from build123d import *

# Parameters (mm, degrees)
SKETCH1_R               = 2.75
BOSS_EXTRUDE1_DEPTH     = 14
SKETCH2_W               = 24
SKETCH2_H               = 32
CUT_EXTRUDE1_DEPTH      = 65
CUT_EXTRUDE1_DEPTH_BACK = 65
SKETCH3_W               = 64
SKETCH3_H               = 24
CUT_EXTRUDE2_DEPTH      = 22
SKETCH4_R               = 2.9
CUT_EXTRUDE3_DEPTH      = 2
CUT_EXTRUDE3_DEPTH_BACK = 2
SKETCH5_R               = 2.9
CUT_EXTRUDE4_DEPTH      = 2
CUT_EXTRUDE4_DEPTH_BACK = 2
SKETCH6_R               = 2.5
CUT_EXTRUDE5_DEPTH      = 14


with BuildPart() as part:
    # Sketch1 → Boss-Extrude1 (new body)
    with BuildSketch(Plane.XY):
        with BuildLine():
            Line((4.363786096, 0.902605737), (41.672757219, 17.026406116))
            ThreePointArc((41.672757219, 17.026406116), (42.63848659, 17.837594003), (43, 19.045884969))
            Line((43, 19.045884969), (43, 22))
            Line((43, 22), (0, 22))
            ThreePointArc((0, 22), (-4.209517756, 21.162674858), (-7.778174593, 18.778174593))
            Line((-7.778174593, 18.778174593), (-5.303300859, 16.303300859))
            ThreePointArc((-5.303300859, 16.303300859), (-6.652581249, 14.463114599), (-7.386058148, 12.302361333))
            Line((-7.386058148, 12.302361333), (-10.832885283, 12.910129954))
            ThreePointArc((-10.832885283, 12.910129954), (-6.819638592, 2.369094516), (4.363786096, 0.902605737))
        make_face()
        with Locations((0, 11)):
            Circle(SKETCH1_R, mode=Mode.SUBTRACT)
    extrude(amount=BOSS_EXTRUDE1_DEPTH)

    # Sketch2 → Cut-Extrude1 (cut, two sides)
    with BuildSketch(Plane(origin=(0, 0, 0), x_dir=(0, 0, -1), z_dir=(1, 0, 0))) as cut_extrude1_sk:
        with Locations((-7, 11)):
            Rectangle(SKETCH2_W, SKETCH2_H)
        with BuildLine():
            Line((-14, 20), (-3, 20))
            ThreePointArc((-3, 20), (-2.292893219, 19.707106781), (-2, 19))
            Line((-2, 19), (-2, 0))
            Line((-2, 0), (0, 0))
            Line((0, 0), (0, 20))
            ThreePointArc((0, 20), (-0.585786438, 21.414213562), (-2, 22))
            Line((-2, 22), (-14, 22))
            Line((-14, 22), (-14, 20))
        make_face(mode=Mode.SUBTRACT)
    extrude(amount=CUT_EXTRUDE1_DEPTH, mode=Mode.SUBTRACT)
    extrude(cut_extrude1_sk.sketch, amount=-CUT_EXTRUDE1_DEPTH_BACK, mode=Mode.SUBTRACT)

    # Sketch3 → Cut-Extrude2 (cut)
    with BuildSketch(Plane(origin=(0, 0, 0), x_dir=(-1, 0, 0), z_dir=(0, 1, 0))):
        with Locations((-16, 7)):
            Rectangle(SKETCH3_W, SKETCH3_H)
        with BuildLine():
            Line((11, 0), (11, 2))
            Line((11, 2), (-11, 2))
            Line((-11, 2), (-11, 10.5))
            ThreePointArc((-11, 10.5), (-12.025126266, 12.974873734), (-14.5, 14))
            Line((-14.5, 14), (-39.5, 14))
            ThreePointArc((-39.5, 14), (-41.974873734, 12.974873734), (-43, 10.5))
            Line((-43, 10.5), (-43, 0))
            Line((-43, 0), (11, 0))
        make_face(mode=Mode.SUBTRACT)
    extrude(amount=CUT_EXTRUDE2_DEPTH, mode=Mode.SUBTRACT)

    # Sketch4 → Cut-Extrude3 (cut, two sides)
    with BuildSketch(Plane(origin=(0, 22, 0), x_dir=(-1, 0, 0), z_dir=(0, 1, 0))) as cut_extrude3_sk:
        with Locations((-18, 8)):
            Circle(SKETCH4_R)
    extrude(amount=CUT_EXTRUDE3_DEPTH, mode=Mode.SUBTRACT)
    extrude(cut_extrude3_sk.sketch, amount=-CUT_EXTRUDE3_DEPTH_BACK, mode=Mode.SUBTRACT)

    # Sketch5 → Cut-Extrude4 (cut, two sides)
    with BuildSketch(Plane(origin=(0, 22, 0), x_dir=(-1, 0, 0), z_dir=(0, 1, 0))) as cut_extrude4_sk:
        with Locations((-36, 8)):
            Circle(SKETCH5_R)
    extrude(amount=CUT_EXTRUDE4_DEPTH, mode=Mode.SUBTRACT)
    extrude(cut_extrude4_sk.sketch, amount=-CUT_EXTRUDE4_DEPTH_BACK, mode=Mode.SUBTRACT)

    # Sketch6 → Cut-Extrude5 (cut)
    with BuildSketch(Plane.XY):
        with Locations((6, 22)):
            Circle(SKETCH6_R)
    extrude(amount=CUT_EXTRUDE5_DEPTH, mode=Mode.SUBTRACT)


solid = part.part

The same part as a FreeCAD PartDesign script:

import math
import FreeCAD as App
import Part
import Sketcher

V = App.Vector
Q = App.Units.Quantity

doc = App.newDocument("Part")
body = doc.addObject("PartDesign::Body", "Body")

sketch1 = body.newObject("Sketcher::SketchObject", "Sketch")
sketch1.AttachmentSupport = (doc.getObject("XY_Plane"), [""])
sketch1.MapMode = "FlatFace"
sketch1.addGeometry(Part.LineSegment(V(4.4, 0.9, 0), V(41.7, 17, 0)), False)
sketch1.addGeometry(Part.ArcOfCircle(Part.Circle(V(40.8, 19, 0), V(0, 0, 1), 2.2), math.radians(-67), math.radians(0)), False)
sketch1.addGeometry(Part.LineSegment(V(43, 19, 0), V(43, 22, 0)), False)
sketch1.addGeometry(Part.LineSegment(V(43, 22, 0), V(0, 22, 0)), False)
sketch1.addGeometry(Part.ArcOfCircle(Part.Circle(V(0, 11, 0), V(0, 0, 1), 11), math.radians(90), math.radians(135)), False)
sketch1.addGeometry(Part.LineSegment(V(-7.8, 18.8, 0), V(-5.3, 16.3, 0)), False)
sketch1.addGeometry(Part.ArcOfCircle(Part.Circle(V(0, 11, 0), V(0, 0, 1), 7.5), math.radians(135), math.radians(170)), False)
sketch1.addGeometry(Part.LineSegment(V(-7.4, 12.3, 0), V(-10.8, 12.9, 0)), False)
sketch1.addGeometry(Part.ArcOfCircle(Part.Circle(V(0, 11, 0), V(0, 0, 1), 11), math.radians(170), math.radians(293)), False)
sketch1.addGeometry(Part.Circle(V(0, 11, 0), V(0, 0, 1), 2.8), False)
sketch1.addConstraint(Sketcher.Constraint("Tangent", 0, 2, 1, 1))
sketch1.addConstraint(Sketcher.Constraint("Tangent", 1, 2, 2, 1))
sketch1.addConstraint(Sketcher.Constraint("Coincident", 2, 2, 3, 1))
sketch1.addConstraint(Sketcher.Constraint("Tangent", 3, 2, 4, 1))
sketch1.addConstraint(Sketcher.Constraint("Coincident", 4, 2, 5, 1))
sketch1.addConstraint(Sketcher.Constraint("Coincident", 5, 2, 6, 1))
sketch1.addConstraint(Sketcher.Constraint("Coincident", 6, 2, 7, 1))
sketch1.addConstraint(Sketcher.Constraint("Coincident", 7, 2, 8, 1))
sketch1.addConstraint(Sketcher.Constraint("Tangent", 8, 2, 0, 1))
sketch1.addConstraint(Sketcher.Constraint("Vertical", 2))
sketch1.addConstraint(Sketcher.Constraint("Horizontal", 3))
sketch1.addConstraint(Sketcher.Constraint("Coincident", 6, 3, 4, 3))
sketch1.addConstraint(Sketcher.Constraint("Coincident", 8, 3, 4, 3))
sketch1.addConstraint(Sketcher.Constraint("Coincident", 9, 3, 4, 3))
sketch1.addConstraint(Sketcher.Constraint("Equal", 4, 8))
sketch1.addConstraint(Sketcher.Constraint("PointOnObject", 4, 3, -2))
sketch1.addConstraint(Sketcher.Constraint("Radius", 4, 11.0))
sketch1.addConstraint(Sketcher.Constraint("Diameter", 9, 5.5))
sketch1.addConstraint(Sketcher.Constraint("Radius", 1, 2.2))
sketch1.addConstraint(Sketcher.Constraint("Radius", 6, 7.5))
sketch1.addConstraint(Sketcher.Constraint("DistanceX", 3, 2, 3, 1, 43.0))
sketch1.addConstraint(Sketcher.Constraint("Angle", 5, Q("-45 deg")))
sketch1.addConstraint(Sketcher.Constraint("Angle", 7, Q("170 deg")))
sketch1.addConstraint(Sketcher.Constraint("DistanceY", -1, 1, 4, 3, 11.0))
sketch1.addConstraint(Sketcher.Constraint("DistanceX", 5, 2, -1, 1, 5.303301))
sketch1.addConstraint(Sketcher.Constraint("Distance", 0, 40.644019))
sketch1.addConstraint(Sketcher.Constraint("DistanceX", 6, 2, -1, 1, 7.386058))
pad1 = body.newObject("PartDesign::Pad", "Pad")
pad1.Profile = sketch1
pad1.Length = 14

sketch2 = body.newObject("Sketcher::SketchObject", "Sketch001")
sketch2.AttachmentSupport = (doc.getObject("YZ_Plane"), [""])
sketch2.MapMode = "FlatFace"
sketch2.addGeometry(Part.LineSegment(V(27, 19, 0), V(-5, 19, 0)), False)
sketch2.addGeometry(Part.LineSegment(V(-5, 19, 0), V(-5, -5, 0)), False)
sketch2.addGeometry(Part.LineSegment(V(-5, -5, 0), V(27, -5, 0)), False)
sketch2.addGeometry(Part.LineSegment(V(27, -5, 0), V(27, 19, 0)), False)
sketch2.addGeometry(Part.LineSegment(V(20, 3, 0), V(20, 14, 0)), False)
sketch2.addGeometry(Part.LineSegment(V(20, 14, 0), V(22, 14, 0)), False)
sketch2.addGeometry(Part.LineSegment(V(22, 14, 0), V(22, 2, 0)), False)
sketch2.addGeometry(Part.ArcOfCircle(Part.Circle(V(20, 2, 0), V(0, 0, 1), 2), math.radians(-90), math.radians(0)), False)
sketch2.addGeometry(Part.LineSegment(V(20, 0, 0), V(0, 0, 0)), False)
sketch2.addGeometry(Part.LineSegment(V(0, 0, 0), V(0, 2, 0)), False)
sketch2.addGeometry(Part.LineSegment(V(0, 2, 0), V(19, 2, 0)), False)
sketch2.addGeometry(Part.ArcOfCircle(Part.Circle(V(19, 3, 0), V(0, 0, 1), 1), math.radians(-90), math.radians(0)), False)
sketch2.addConstraint(Sketcher.Constraint("Coincident", 0, 2, 1, 1))
sketch2.addConstraint(Sketcher.Constraint("Coincident", 1, 2, 2, 1))
sketch2.addConstraint(Sketcher.Constraint("Coincident", 2, 2, 3, 1))
sketch2.addConstraint(Sketcher.Constraint("Coincident", 3, 2, 0, 1))
sketch2.addConstraint(Sketcher.Constraint("Coincident", 4, 2, 5, 1))
sketch2.addConstraint(Sketcher.Constraint("Coincident", 5, 2, 6, 1))
sketch2.addConstraint(Sketcher.Constraint("Tangent", 6, 2, 7, 2))
sketch2.addConstraint(Sketcher.Constraint("Tangent", 7, 1, 8, 1))
sketch2.addConstraint(Sketcher.Constraint("Coincident", 8, 2, 9, 1))
sketch2.addConstraint(Sketcher.Constraint("Coincident", 9, 2, 10, 1))
sketch2.addConstraint(Sketcher.Constraint("Tangent", 10, 2, 11, 1))
sketch2.addConstraint(Sketcher.Constraint("Tangent", 11, 2, 4, 1))
sketch2.addConstraint(Sketcher.Constraint("Horizontal", 0))
sketch2.addConstraint(Sketcher.Constraint("Vertical", 1))
sketch2.addConstraint(Sketcher.Constraint("Horizontal", 2))
sketch2.addConstraint(Sketcher.Constraint("Vertical", 3))
sketch2.addConstraint(Sketcher.Constraint("Vertical", 4))
sketch2.addConstraint(Sketcher.Constraint("Horizontal", 5))
sketch2.addConstraint(Sketcher.Constraint("Vertical", 6))
sketch2.addConstraint(Sketcher.Constraint("Horizontal", 8))
sketch2.addConstraint(Sketcher.Constraint("Vertical", 9))
sketch2.addConstraint(Sketcher.Constraint("Horizontal", 10))
sketch2.addConstraint(Sketcher.Constraint("Coincident", 8, 2, -1, 1))
sketch2.addConstraint(Sketcher.Constraint("Horizontal", 6, 2, 9, 2))
sketch2.addConstraint(Sketcher.Constraint("Vertical", 7, 3, 4, 2))
sketch2.addConstraint(Sketcher.Constraint("Radius", 7, 2.0))
sketch2.addConstraint(Sketcher.Constraint("Radius", 11, 1.0))
sketch2.addConstraint(Sketcher.Constraint("DistanceX", 0, 2, 0, 1, 32.0))
sketch2.addConstraint(Sketcher.Constraint("DistanceX", 8, 2, 8, 1, 20.0))
sketch2.addConstraint(Sketcher.Constraint("DistanceY", 1, 2, 1, 1, 24.0))
sketch2.addConstraint(Sketcher.Constraint("DistanceY", 4, 1, 4, 2, 11.0))
sketch2.addConstraint(Sketcher.Constraint("DistanceX", 0, 2, -1, 1, 5.0))
sketch2.addConstraint(Sketcher.Constraint("DistanceY", -1, 1, 0, 2, 19.0))
pocket1 = body.newObject("PartDesign::Pocket", "Pocket")
pocket1.Profile = sketch2
pocket1.Type = "ThroughAll"
pocket1.Midplane = True

sketch3 = body.newObject("Sketcher::SketchObject", "Sketch002")
sketch3.AttachmentSupport = (doc.getObject("XZ_Plane"), [""])
sketch3.MapMode = "FlatFace"
sketch3.addGeometry(Part.LineSegment(V(48, 19, 0), V(48, -5, 0)), False)
sketch3.addGeometry(Part.LineSegment(V(48, -5, 0), V(-16, -5, 0)), False)
sketch3.addGeometry(Part.LineSegment(V(-16, -5, 0), V(-16, 19, 0)), False)
sketch3.addGeometry(Part.LineSegment(V(-16, 19, 0), V(48, 19, 0)), False)
sketch3.addGeometry(Part.LineSegment(V(-11, 2, 0), V(-11, 0, 0)), False)
sketch3.addGeometry(Part.LineSegment(V(-11, 0, 0), V(43, 0, 0)), False)
sketch3.addGeometry(Part.LineSegment(V(43, 0, 0), V(43, 10.5, 0)), False)
sketch3.addGeometry(Part.ArcOfCircle(Part.Circle(V(39.5, 10.5, 0), V(0, 0, 1), 3.5), math.radians(0), math.radians(90)), False)
sketch3.addGeometry(Part.LineSegment(V(39.5, 14, 0), V(14.5, 14, 0)), False)
sketch3.addGeometry(Part.ArcOfCircle(Part.Circle(V(14.5, 10.5, 0), V(0, 0, 1), 3.5), math.radians(90), math.radians(180)), False)
sketch3.addGeometry(Part.LineSegment(V(11, 10.5, 0), V(11, 2, 0)), False)
sketch3.addGeometry(Part.LineSegment(V(11, 2, 0), V(-11, 2, 0)), False)
sketch3.addConstraint(Sketcher.Constraint("Coincident", 0, 2, 1, 1))
sketch3.addConstraint(Sketcher.Constraint("Coincident", 1, 2, 2, 1))
sketch3.addConstraint(Sketcher.Constraint("Coincident", 2, 2, 3, 1))
sketch3.addConstraint(Sketcher.Constraint("Coincident", 3, 2, 0, 1))
sketch3.addConstraint(Sketcher.Constraint("Coincident", 4, 2, 5, 1))
sketch3.addConstraint(Sketcher.Constraint("Coincident", 5, 2, 6, 1))
sketch3.addConstraint(Sketcher.Constraint("Tangent", 6, 2, 7, 1))
sketch3.addConstraint(Sketcher.Constraint("Tangent", 7, 2, 8, 1))
sketch3.addConstraint(Sketcher.Constraint("Tangent", 8, 2, 9, 1))
sketch3.addConstraint(Sketcher.Constraint("Tangent", 9, 2, 10, 1))
sketch3.addConstraint(Sketcher.Constraint("Coincident", 10, 2, 11, 1))
sketch3.addConstraint(Sketcher.Constraint("Coincident", 11, 2, 4, 1))
sketch3.addConstraint(Sketcher.Constraint("Vertical", 0))
sketch3.addConstraint(Sketcher.Constraint("Horizontal", 1))
sketch3.addConstraint(Sketcher.Constraint("Vertical", 2))
sketch3.addConstraint(Sketcher.Constraint("Horizontal", 3))
sketch3.addConstraint(Sketcher.Constraint("Vertical", 4))
sketch3.addConstraint(Sketcher.Constraint("Horizontal", 5))
sketch3.addConstraint(Sketcher.Constraint("Vertical", 6))
sketch3.addConstraint(Sketcher.Constraint("Horizontal", 8))
sketch3.addConstraint(Sketcher.Constraint("Vertical", 10))
sketch3.addConstraint(Sketcher.Constraint("Horizontal", 11))
sketch3.addConstraint(Sketcher.Constraint("Equal", 7, 9))
sketch3.addConstraint(Sketcher.Constraint("PointOnObject", 4, 2, -1))
sketch3.addConstraint(Sketcher.Constraint("Radius", 7, 3.5))
sketch3.addConstraint(Sketcher.Constraint("DistanceX", 1, 2, 1, 1, 64.0))
sketch3.addConstraint(Sketcher.Constraint("DistanceX", 5, 1, 5, 2, 54.0))
sketch3.addConstraint(Sketcher.Constraint("DistanceX", 8, 2, 8, 1, 25.0))
sketch3.addConstraint(Sketcher.Constraint("DistanceY", 0, 2, 0, 1, 24.0))
sketch3.addConstraint(Sketcher.Constraint("DistanceY", 4, 2, 4, 1, 2.0))
sketch3.addConstraint(Sketcher.Constraint("DistanceY", 6, 1, 6, 2, 10.5))
sketch3.addConstraint(Sketcher.Constraint("DistanceX", -1, 1, 0, 2, 48.0))
sketch3.addConstraint(Sketcher.Constraint("DistanceY", 0, 2, -1, 1, 5.0))
sketch3.addConstraint(Sketcher.Constraint("DistanceX", 4, 2, -1, 1, 11.0))
pocket2 = body.newObject("PartDesign::Pocket", "Pocket001")
pocket2.Profile = sketch3
pocket2.Length = 22

sketch4 = body.newObject("Sketcher::SketchObject", "Sketch003")
sketch4.AttachmentSupport = (doc.getObject("XZ_Plane"), [""])
sketch4.MapMode = "FlatFace"
sketch4.AttachmentOffset = App.Placement(V(0, 0, -22), App.Rotation())
sketch4.addGeometry(Part.Circle(V(18, 8, 0), V(0, 0, 1), 2.9), False)
sketch4.addConstraint(Sketcher.Constraint("Diameter", 0, 5.8))
sketch4.addConstraint(Sketcher.Constraint("DistanceX", -1, 1, 0, 3, 18.0))
sketch4.addConstraint(Sketcher.Constraint("DistanceY", -1, 1, 0, 3, 8.0))
pocket3 = body.newObject("PartDesign::Pocket", "Pocket002")
pocket3.Profile = sketch4
pocket3.Type = "ThroughAll"
pocket3.Midplane = True

sketch5 = body.newObject("Sketcher::SketchObject", "Sketch004")
sketch5.AttachmentSupport = (doc.getObject("XZ_Plane"), [""])
sketch5.MapMode = "FlatFace"
sketch5.AttachmentOffset = App.Placement(V(0, 0, -22), App.Rotation())
sketch5.addGeometry(Part.Circle(V(36, 8, 0), V(0, 0, 1), 2.9), False)
sketch5.addConstraint(Sketcher.Constraint("Diameter", 0, 5.8))
sketch5.addConstraint(Sketcher.Constraint("DistanceX", -1, 1, 0, 3, 36.0))
sketch5.addConstraint(Sketcher.Constraint("DistanceY", -1, 1, 0, 3, 8.0))
pocket4 = body.newObject("PartDesign::Pocket", "Pocket003")
pocket4.Profile = sketch5
pocket4.Type = "ThroughAll"
pocket4.Midplane = True

sketch6 = body.newObject("Sketcher::SketchObject", "Sketch005")
sketch6.AttachmentSupport = (doc.getObject("XY_Plane"), [""])
sketch6.MapMode = "FlatFace"
sketch6.addGeometry(Part.Circle(V(6, 22, 0), V(0, 0, 1), 2.5), False)
sketch6.addConstraint(Sketcher.Constraint("Diameter", 0, 5.0))
sketch6.addConstraint(Sketcher.Constraint("DistanceX", -1, 1, 0, 3, 6.0))
sketch6.addConstraint(Sketcher.Constraint("DistanceY", -1, 1, 0, 3, 22.0))
pocket5 = body.newObject("PartDesign::Pocket", "Pocket004")
pocket5.Profile = sketch6
pocket5.Length = 14
pocket5.Reversed = True

doc.recompute()
